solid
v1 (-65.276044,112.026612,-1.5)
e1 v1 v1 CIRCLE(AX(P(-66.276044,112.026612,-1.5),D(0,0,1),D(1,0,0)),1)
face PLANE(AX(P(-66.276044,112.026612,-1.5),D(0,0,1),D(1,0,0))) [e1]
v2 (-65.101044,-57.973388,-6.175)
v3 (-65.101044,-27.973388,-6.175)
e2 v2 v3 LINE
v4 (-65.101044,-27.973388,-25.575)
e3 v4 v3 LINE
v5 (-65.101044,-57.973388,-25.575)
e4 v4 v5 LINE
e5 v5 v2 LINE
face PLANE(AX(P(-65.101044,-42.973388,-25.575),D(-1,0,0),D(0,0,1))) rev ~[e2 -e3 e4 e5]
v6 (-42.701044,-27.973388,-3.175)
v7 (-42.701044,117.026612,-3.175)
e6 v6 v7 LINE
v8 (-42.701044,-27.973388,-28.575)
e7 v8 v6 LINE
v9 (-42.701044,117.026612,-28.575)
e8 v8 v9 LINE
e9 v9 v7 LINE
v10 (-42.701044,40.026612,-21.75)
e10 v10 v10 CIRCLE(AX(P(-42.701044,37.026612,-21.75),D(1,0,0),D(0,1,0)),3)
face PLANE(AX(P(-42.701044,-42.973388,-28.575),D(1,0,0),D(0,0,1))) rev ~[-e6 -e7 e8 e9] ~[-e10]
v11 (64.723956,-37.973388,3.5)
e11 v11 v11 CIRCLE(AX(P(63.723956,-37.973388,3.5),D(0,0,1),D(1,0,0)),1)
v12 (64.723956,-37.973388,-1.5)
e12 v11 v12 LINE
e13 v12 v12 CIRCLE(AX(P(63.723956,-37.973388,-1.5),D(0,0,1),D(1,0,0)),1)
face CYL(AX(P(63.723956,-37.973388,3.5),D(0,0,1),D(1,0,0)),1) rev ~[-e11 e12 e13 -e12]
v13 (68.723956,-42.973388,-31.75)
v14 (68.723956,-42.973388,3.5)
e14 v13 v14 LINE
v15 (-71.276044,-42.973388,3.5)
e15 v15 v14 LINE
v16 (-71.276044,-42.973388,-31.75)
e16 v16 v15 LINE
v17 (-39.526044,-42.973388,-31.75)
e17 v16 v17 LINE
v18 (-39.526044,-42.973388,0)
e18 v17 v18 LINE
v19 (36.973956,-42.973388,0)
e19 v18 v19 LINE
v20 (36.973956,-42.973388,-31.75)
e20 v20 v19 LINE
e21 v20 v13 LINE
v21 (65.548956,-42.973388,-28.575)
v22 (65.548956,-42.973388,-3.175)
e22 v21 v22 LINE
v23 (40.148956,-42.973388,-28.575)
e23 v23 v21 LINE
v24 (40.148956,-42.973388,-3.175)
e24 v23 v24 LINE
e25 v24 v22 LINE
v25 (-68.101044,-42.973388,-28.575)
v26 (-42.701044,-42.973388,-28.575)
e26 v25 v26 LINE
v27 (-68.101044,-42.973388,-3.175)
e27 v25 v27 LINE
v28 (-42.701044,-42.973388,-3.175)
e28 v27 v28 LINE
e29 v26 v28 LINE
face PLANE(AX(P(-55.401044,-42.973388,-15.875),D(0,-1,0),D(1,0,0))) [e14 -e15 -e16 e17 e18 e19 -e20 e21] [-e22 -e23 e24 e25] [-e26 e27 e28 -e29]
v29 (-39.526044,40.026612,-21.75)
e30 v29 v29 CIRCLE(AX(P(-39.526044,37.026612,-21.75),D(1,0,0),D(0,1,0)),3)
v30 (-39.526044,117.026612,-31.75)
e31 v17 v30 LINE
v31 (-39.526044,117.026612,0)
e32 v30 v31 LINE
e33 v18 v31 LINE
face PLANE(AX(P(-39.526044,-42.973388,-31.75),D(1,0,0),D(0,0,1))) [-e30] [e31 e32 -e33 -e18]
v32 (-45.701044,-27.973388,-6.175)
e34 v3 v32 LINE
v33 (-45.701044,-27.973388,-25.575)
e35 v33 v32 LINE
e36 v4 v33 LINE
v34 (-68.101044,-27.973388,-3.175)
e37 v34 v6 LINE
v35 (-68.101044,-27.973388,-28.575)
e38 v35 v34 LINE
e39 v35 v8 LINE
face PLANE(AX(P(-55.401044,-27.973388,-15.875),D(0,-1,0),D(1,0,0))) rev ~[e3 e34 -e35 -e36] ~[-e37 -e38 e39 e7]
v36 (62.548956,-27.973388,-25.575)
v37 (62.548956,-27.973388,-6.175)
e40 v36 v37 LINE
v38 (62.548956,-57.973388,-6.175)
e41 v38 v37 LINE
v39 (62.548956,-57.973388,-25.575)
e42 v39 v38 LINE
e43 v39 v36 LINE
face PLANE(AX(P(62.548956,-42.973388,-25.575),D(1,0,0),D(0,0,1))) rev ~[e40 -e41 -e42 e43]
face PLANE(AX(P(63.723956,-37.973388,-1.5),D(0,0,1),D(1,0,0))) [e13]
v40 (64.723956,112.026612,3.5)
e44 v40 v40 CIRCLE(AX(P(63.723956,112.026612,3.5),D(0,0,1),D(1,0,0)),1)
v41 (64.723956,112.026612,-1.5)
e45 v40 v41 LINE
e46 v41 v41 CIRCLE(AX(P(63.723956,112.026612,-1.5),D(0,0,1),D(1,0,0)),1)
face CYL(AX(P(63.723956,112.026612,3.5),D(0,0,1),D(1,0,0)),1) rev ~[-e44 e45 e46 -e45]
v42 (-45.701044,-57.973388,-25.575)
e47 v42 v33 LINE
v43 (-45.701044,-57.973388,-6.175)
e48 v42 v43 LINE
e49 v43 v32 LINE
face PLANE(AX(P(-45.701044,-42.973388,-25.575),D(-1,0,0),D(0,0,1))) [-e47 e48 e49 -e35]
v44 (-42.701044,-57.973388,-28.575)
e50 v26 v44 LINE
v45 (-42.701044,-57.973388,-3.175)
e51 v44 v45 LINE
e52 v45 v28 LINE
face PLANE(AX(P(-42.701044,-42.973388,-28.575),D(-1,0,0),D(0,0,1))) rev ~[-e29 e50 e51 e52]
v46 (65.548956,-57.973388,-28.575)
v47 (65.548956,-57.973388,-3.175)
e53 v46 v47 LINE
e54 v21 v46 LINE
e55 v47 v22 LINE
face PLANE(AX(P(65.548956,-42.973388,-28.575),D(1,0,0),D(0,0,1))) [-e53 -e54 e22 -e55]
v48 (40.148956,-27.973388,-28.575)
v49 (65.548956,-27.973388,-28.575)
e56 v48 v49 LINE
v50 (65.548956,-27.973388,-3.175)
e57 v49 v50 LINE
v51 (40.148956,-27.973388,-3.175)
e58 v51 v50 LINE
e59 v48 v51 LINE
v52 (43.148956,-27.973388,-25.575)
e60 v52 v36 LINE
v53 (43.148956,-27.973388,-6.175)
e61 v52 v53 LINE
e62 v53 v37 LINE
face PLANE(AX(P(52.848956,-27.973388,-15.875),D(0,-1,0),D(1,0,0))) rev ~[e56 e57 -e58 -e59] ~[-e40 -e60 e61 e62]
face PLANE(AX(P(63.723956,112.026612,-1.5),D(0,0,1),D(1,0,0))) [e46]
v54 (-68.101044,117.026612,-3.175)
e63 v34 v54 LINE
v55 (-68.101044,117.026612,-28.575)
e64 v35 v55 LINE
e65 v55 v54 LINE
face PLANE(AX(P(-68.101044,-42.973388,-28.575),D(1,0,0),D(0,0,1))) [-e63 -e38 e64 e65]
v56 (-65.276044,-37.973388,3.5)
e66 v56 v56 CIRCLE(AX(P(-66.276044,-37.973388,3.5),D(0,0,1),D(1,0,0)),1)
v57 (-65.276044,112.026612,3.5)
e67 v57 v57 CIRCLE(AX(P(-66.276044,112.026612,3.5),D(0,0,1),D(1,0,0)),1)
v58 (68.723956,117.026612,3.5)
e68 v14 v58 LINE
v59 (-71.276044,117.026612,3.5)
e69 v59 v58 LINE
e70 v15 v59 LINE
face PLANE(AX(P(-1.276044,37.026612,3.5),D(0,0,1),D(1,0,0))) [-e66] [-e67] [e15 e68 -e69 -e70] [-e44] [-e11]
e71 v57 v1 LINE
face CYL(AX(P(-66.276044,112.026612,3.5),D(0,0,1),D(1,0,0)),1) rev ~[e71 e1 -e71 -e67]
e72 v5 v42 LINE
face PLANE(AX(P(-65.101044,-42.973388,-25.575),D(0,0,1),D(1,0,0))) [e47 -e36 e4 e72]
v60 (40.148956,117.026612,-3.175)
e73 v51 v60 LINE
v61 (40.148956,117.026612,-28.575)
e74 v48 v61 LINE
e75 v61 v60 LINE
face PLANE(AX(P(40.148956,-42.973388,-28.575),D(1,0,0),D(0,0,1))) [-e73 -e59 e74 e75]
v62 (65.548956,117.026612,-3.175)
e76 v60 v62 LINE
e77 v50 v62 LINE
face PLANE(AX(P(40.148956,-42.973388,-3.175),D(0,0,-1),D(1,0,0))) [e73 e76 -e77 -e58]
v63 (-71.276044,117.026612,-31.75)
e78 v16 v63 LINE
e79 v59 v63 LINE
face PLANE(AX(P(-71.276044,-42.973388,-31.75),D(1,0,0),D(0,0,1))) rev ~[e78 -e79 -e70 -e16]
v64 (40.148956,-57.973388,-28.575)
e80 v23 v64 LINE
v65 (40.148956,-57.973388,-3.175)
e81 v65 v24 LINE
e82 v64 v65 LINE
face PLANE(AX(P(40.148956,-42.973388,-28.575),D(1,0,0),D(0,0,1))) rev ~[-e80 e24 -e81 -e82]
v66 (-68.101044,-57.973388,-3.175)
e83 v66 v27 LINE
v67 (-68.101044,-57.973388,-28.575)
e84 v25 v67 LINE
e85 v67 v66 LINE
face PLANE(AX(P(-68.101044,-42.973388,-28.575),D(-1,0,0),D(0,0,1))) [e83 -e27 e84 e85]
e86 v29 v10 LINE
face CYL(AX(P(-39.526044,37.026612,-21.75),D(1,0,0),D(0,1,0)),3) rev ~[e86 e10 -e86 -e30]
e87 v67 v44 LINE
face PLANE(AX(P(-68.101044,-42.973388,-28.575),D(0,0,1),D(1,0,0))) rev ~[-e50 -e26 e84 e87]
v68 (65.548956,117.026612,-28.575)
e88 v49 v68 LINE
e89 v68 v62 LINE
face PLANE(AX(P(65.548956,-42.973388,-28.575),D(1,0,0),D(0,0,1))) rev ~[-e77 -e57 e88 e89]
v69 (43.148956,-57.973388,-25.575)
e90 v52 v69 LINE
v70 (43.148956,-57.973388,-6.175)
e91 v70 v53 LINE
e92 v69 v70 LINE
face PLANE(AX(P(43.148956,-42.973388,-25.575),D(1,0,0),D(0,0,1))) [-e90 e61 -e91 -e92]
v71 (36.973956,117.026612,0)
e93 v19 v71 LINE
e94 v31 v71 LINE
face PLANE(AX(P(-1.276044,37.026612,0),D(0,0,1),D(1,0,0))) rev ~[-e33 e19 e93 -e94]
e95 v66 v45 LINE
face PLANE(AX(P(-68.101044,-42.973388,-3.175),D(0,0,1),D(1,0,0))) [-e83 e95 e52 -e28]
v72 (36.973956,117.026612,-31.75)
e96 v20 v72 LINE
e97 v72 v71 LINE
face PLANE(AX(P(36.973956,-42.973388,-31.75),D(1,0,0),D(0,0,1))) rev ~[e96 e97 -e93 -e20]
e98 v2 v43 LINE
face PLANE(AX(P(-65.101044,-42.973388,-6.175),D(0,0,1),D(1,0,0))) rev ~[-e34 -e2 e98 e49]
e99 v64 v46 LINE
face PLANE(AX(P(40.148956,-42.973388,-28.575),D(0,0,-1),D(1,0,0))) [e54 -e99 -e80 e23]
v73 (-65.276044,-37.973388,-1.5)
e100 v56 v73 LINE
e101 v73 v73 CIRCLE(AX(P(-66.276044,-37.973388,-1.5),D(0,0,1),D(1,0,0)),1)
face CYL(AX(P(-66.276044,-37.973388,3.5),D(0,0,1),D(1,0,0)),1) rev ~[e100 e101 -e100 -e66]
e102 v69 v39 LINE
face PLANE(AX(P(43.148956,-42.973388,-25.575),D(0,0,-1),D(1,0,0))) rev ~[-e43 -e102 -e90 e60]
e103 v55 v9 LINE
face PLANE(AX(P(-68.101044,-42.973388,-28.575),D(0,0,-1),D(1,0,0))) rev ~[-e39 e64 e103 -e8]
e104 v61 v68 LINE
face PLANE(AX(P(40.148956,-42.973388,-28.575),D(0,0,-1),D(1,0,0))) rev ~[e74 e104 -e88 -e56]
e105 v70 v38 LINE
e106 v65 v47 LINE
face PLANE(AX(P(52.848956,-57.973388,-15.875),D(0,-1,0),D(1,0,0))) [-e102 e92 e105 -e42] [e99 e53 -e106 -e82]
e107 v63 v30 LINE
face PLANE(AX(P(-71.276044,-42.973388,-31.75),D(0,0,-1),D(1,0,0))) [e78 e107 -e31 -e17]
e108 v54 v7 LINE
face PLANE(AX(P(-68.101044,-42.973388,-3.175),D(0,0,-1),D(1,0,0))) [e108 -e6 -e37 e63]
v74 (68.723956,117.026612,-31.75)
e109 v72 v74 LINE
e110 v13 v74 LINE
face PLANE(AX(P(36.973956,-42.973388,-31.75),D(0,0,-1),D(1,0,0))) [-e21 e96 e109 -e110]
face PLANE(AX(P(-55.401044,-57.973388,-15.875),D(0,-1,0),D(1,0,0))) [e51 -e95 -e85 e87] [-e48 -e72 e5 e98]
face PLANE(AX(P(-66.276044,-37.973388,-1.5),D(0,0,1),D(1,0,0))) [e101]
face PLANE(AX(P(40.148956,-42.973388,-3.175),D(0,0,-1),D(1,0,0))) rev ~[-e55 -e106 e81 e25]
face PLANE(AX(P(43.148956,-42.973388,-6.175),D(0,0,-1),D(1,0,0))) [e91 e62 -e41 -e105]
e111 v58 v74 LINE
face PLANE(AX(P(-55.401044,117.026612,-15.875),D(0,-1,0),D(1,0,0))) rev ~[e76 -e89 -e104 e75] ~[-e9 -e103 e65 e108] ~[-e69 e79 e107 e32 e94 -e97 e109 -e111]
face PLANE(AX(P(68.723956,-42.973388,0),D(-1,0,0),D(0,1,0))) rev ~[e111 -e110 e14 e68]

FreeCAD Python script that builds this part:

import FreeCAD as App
import Part
import Sketcher

doc = App.newDocument("Part")
body = doc.addObject("PartDesign::Body", "Body")

# Sketch on XY plane
sketch1 = doc.addObject("Sketcher::SketchObject", "Sketch")
body.addObject(sketch1)
sketch1.AttachmentSupport = (doc.XY_Plane, [""])
sketch1.MapMode = "FlatFace"
sketch1.addGeometry([
    Part.LineSegment(App.Vector(-71, 117, 0), App.Vector(-71, -43, 0)),
    Part.LineSegment(App.Vector(-71, -43, 0), App.Vector(69, -43, 0)),
    Part.LineSegment(App.Vector(69, -43, 0), App.Vector(69, 117, 0)),
    Part.LineSegment(App.Vector(69, 117, 0), App.Vector(-71, 117, 0)),
], False)
sketch1.addConstraint([
    Sketcher.Constraint("Coincident", 0, 2, 1, 1),
    Sketcher.Constraint("Coincident", 1, 2, 2, 1),
    Sketcher.Constraint("Coincident", 2, 2, 3, 1),
    Sketcher.Constraint("Coincident", 3, 2, 0, 1),
    Sketcher.Constraint("Vertical", 0),
    Sketcher.Constraint("Horizontal", 1),
    Sketcher.Constraint("Vertical", 2),
    Sketcher.Constraint("Horizontal", 3),
    Sketcher.Constraint("DistanceX", 1, 1, 1, 2, 140.0),
    Sketcher.Constraint("DistanceY", 0, 2, 0, 1, 160.0),
    Sketcher.Constraint("DistanceY", -1, 1, 2, 2, 117.026612),
    Sketcher.Constraint("DistanceX", 0, 2, -1, 1, 71.276044),
])
pad1 = doc.addObject("PartDesign::Pad", "Pad")
body.addObject(pad1)
pad1.Profile = sketch1
pad1.Length = 3.5

# Sketch on XZ plane
sketch2 = doc.addObject("Sketcher::SketchObject", "Sketch001")
body.addObject(sketch2)
sketch2.AttachmentSupport = (doc.XZ_Plane, [""])
sketch2.MapMode = "FlatFace"
sketch2.AttachmentOffset = App.Placement(App.Vector(0, 0, 42.973388), App.Rotation())
sketch2.addGeometry([
    Part.LineSegment(App.Vector(-71, 0, 0), App.Vector(-71, -32, 0)),  # 0
    Part.LineSegment(App.Vector(-71, -32, 0), App.Vector(-40, -32, 0)),  # 1
    Part.LineSegment(App.Vector(-40, -32, 0), App.Vector(-40, 0, 0)),  # 2
    Part.LineSegment(App.Vector(-40, 0, 0), App.Vector(-71, 0, 0)),  # 3
    Part.LineSegment(App.Vector(-43, -29, 0), App.Vector(-68, -29, 0)),  # 4
    Part.LineSegment(App.Vector(-68, -29, 0), App.Vector(-68, -3, 0)),  # 5
    Part.LineSegment(App.Vector(-68, -3, 0), App.Vector(-43, -3, 0)),  # 6
    Part.LineSegment(App.Vector(-43, -3, 0), App.Vector(-43, -29, 0)),  # 7
    Part.LineSegment(App.Vector(37, 0, 0), App.Vector(37, -32, 0)),  # 8
    Part.LineSegment(App.Vector(37, -32, 0), App.Vector(69, -32, 0)),  # 9
    Part.LineSegment(App.Vector(69, -32, 0), App.Vector(69, 0, 0)),  # 10
    Part.LineSegment(App.Vector(69, 0, 0), App.Vector(37, 0, 0)),  # 11
    Part.LineSegment(App.Vector(66, -29, 0), App.Vector(40, -29, 0)),  # 12
    Part.LineSegment(App.Vector(40, -29, 0), App.Vector(40, -3, 0)),  # 13
    Part.LineSegment(App.Vector(40, -3, 0), App.Vector(66, -3, 0)),  # 14
    Part.LineSegment(App.Vector(66, -3, 0), App.Vector(66, -29, 0)),  # 15
], False)
sketch2.addConstraint([
    Sketcher.Constraint("Coincident", 0, 2, 1, 1),
    Sketcher.Constraint("Coincident", 1, 2, 2, 1),
    Sketcher.Constraint("Coincident", 2, 2, 3, 1),
    Sketcher.Constraint("Coincident", 3, 2, 0, 1),
    Sketcher.Constraint("Coincident", 4, 2, 5, 1),
    Sketcher.Constraint("Coincident", 5, 2, 6, 1),
    Sketcher.Constraint("Coincident", 6, 2, 7, 1),
    Sketcher.Constraint("Coincident", 7, 2, 4, 1),
    Sketcher.Constraint("Coincident", 8, 2, 9, 1),
    Sketcher.Constraint("Coincident", 9, 2, 10, 1),
    Sketcher.Constraint("Coincident", 10, 2, 11, 1),
    Sketcher.Constraint("Coincident", 11, 2, 8, 1),
    Sketcher.Constraint("Coincident", 12, 2, 13, 1),
    Sketcher.Constraint("Coincident", 13, 2, 14, 1),
    Sketcher.Constraint("Coincident", 14, 2, 15, 1),
    Sketcher.Constraint("Coincident", 15, 2, 12, 1),
    Sketcher.Constraint("Vertical", 0),
    Sketcher.Constraint("Horizontal", 1),
    Sketcher.Constraint("Vertical", 2),
    Sketcher.Constraint("Horizontal", 3),
    Sketcher.Constraint("Horizontal", 4),
    Sketcher.Constraint("Vertical", 5),
    Sketcher.Constraint("Horizontal", 6),
    Sketcher.Constraint("Vertical", 7),
    Sketcher.Constraint("Vertical", 8),
    Sketcher.Constraint("Horizontal", 9),
    Sketcher.Constraint("Vertical", 10),
    Sketcher.Constraint("Horizontal", 11),
    Sketcher.Constraint("Horizontal", 12),
    Sketcher.Constraint("Vertical", 13),
    Sketcher.Constraint("Horizontal", 14),
    Sketcher.Constraint("Vertical", 15),
    Sketcher.Constraint("PointOnObject", 2, 2, -1),
    Sketcher.Constraint("PointOnObject", 10, 2, -1),
    Sketcher.Constraint("Horizontal", 1, 2, 8, 2),
    Sketcher.Constraint("Horizontal", 7, 2, 12, 2),
    Sketcher.Constraint("Horizontal", 6, 2, 13, 2),
    Sketcher.Constraint("Equal", 3, 9),
    Sketcher.Constraint("Equal", 6, 12),
    Sketcher.Constraint("Equal", 11, 0),
    Sketcher.Constraint("Equal", 14, 5),
    Sketcher.Constraint("DistanceX", 4, 2, 4, 1, 25.4),
    Sketcher.Constraint("DistanceX", 1, 1, 1, 2, 31.75),
    Sketcher.Constraint("DistanceX", 1, 2, 8, 2, 76.5),
    Sketcher.Constraint("DistanceY", 4, 2, -1, 1, 28.575),
    Sketcher.Constraint("DistanceX", 0, 2, 4, 2, 3.175),
    Sketcher.Constraint("DistanceX", 8, 2, 12, 2, 3.175),
    Sketcher.Constraint("DistanceX", 0, 2, -1, 1, 71.276044),
])
pad2 = doc.addObject("PartDesign::Pad", "Pad001")
body.addObject(pad2)
pad2.Profile = sketch2
pad2.Length = 160
pad2.Reversed = True

# Sketch on XZ plane
sketch3 = doc.addObject("Sketcher::SketchObject", "Sketch002")
body.addObject(sketch3)
sketch3.AttachmentSupport = (doc.XZ_Plane, [""])
sketch3.MapMode = "FlatFace"
sketch3.AttachmentOffset = App.Placement(App.Vector(0, 0, 42.973388), App.Rotation())
sketch3.addGeometry([
    Part.LineSegment(App.Vector(-68, -3, 0), App.Vector(-68, -29, 0)),  # 0
    Part.LineSegment(App.Vector(-68, -29, 0), App.Vector(-43, -29, 0)),  # 1
    Part.LineSegment(App.Vector(-43, -29, 0), App.Vector(-43, -3, 0)),  # 2
    Part.LineSegment(App.Vector(-43, -3, 0), App.Vector(-68, -3, 0)),  # 3
    Part.LineSegment(App.Vector(-46, -26, 0), App.Vector(-65, -26, 0)),  # 4
    Part.LineSegment(App.Vector(-65, -26, 0), App.Vector(-65, -6, 0)),  # 5
    Part.LineSegment(App.Vector(-65, -6, 0), App.Vector(-46, -6, 0)),  # 6
    Part.LineSegment(App.Vector(-46, -6, 0), App.Vector(-46, -26, 0)),  # 7
    Part.LineSegment(App.Vector(40, -3, 0), App.Vector(40, -29, 0)),  # 8
    Part.LineSegment(App.Vector(40, -29, 0), App.Vector(66, -29, 0)),  # 9
    Part.LineSegment(App.Vector(66, -29, 0), App.Vector(66, -3, 0)),  # 10
    Part.LineSegment(App.Vector(66, -3, 0), App.Vector(40, -3, 0)),  # 11
    Part.LineSegment(App.Vector(63, -26, 0), App.Vector(43, -26, 0)),  # 12
    Part.LineSegment(App.Vector(43, -26, 0), App.Vector(43, -6, 0)),  # 13
    Part.LineSegment(App.Vector(43, -6, 0), App.Vector(63, -6, 0)),  # 14
    Part.LineSegment(App.Vector(63, -6, 0), App.Vector(63, -26, 0)),  # 15
], False)
sketch3.addConstraint([
    Sketcher.Constraint("Coincident", 0, 2, 1, 1),
    Sketcher.Constraint("Coincident", 1, 2, 2, 1),
    Sketcher.Constraint("Coincident", 2, 2, 3, 1),
    Sketcher.Constraint("Coincident", 3, 2, 0, 1),
    Sketcher.Constraint("Coincident", 4, 2, 5, 1),
    Sketcher.Constraint("Coincident", 5, 2, 6, 1),
    Sketcher.Constraint("Coincident", 6, 2, 7, 1),
    Sketcher.Constraint("Coincident", 7, 2, 4, 1),
    Sketcher.Constraint("Coincident", 8, 2, 9, 1),
    Sketcher.Constraint("Coincident", 9, 2, 10, 1),
    Sketcher.Constraint("Coincident", 10, 2, 11, 1),
    Sketcher.Constraint("Coincident", 11, 2, 8, 1),
    Sketcher.Constraint("Coincident", 12, 2, 13, 1),
    Sketcher.Constraint("Coincident", 13, 2, 14, 1),
    Sketcher.Constraint("Coincident", 14, 2, 15, 1),
    Sketcher.Constraint("Coincident", 15, 2, 12, 1),
    Sketcher.Constraint("Vertical", 0),
    Sketcher.Constraint("Horizontal", 1),
    Sketcher.Constraint("Vertical", 2),
    Sketcher.Constraint("Horizontal", 3),
    Sketcher.Constraint("Horizontal", 4),
    Sketcher.Constraint("Vertical", 5),
    Sketcher.Constraint("Horizontal", 6),
    Sketcher.Constraint("Vertical", 7),
    Sketcher.Constraint("Vertical", 8),
    Sketcher.Constraint("Horizontal", 9),
    Sketcher.Constraint("Vertical", 10),
    Sketcher.Constraint("Horizontal", 11),
    Sketcher.Constraint("Horizontal", 12),
    Sketcher.Constraint("Vertical", 13),
    Sketcher.Constraint("Horizontal", 14),
    Sketcher.Constraint("Vertical", 15),
    Sketcher.Constraint("Horizontal", 1, 2, 8, 2),
    Sketcher.Constraint("Horizontal", 3, 2, 10, 2),
    Sketcher.Constraint("Horizontal", 7, 2, 12, 2),
    Sketcher.Constraint("Horizontal", 6, 2, 13, 2),
    Sketcher.Constraint("Equal", 3, 9),
    Sketcher.Constraint("Equal", 6, 12),
    Sketcher.Constraint("Equal", 11, 0),
    Sketcher.Constraint("Equal", 14, 5),
    Sketcher.Constraint("DistanceX", 1, 1, 1, 2, 25.4),
    Sketcher.Constraint("DistanceX", 4, 2, 4, 1, 19.4),
    Sketcher.Constraint("DistanceX", 0, 2, 4, 2, 3.0),
    Sketcher.Constraint("DistanceY", 0, 2, 4, 2, 3.0),
    Sketcher.Constraint("DistanceX", 8, 2, 12, 2, 3.0),
    Sketcher.Constraint("DistanceX", 1, 2, 8, 2, 82.85),
    Sketcher.Constraint("DistanceY", 0, 2, -1, 1, 28.575),
    Sketcher.Constraint("DistanceX", 0, 2, -1, 1, 68.101044),
])
pad3 = doc.addObject("PartDesign::Pad", "Pad002")
body.addObject(pad3)
pad3.Profile = sketch3
pad3.Length = 30
pad3.Midplane = True

# Sketch on YZ plane
sketch4 = doc.addObject("Sketcher::SketchObject", "Sketch003")
body.addObject(sketch4)
sketch4.AttachmentSupport = (doc.YZ_Plane, [""])
sketch4.MapMode = "FlatFace"
sketch4.AttachmentOffset = App.Placement(App.Vector(0, 0, -39.526044), App.Rotation())
sketch4.addGeometry(Part.Circle(App.Vector(37, -21.8, 0), App.Vector(0, 0, 1), 3), False)
sketch4.addConstraint([
    Sketcher.Constraint("Diameter", 0, 6.0),
    Sketcher.Constraint("DistanceY", 0, 3, -1, 1, 21.75),
    Sketcher.Constraint("DistanceX", -1, 1, 0, 3, 37.026612),
])
pocket1 = doc.addObject("PartDesign::Pocket", "Pocket")
body.addObject(pocket1)
pocket1.Profile = sketch4
pocket1.Length = 4

# Sketch on XY plane
sketch5 = doc.addObject("Sketcher::SketchObject", "Sketch004")
body.addObject(sketch5)
sketch5.AttachmentSupport = (doc.XY_Plane, [""])
sketch5.MapMode = "FlatFace"
sketch5.AttachmentOffset = App.Placement(App.Vector(0, 0, 3.5), App.Rotation())
sketch5.addGeometry([
    Part.Circle(App.Vector(-66.3, 112, 0), App.Vector(0, 0, 1), 1),
    Part.Circle(App.Vector(63.7, 112, 0), App.Vector(0, 0, 1), 1),
    Part.Circle(App.Vector(63.7, -38, 0), App.Vector(0, 0, 1), 1),
    Part.Circle(App.Vector(-66.3, -38, 0), App.Vector(0, 0, 1), 1),
], False)
sketch5.addConstraint([
    Sketcher.Constraint("Equal", 0, 1),
    Sketcher.Constraint("Equal", 1, 2),
    Sketcher.Constraint("Equal", 2, 3),
    Sketcher.Constraint("Horizontal", 0, 3, 1, 3),
    Sketcher.Constraint("Horizontal", 2, 3, 3, 3),
    Sketcher.Constraint("Vertical", 1, 3, 2, 3),
    Sketcher.Constraint("Vertical", 0, 3, 3, 3),
    Sketcher.Constraint("Diameter", 0, 2.0),
    Sketcher.Constraint("DistanceX", 0, 3, 1, 3, 130.0),
    Sketcher.Constraint("DistanceY", 2, 3, 1, 3, 150.0),
    Sketcher.Constraint("DistanceY", -1, 1, 0, 3, 112.026612),
    Sketcher.Constraint("DistanceX", 0, 3, -1, 1, 66.276044),
])
pocket2 = doc.addObject("PartDesign::Pocket", "Pocket001")
body.addObject(pocket2)
pocket2.Profile = sketch5
pocket2.Length = 5

doc.recompute()
